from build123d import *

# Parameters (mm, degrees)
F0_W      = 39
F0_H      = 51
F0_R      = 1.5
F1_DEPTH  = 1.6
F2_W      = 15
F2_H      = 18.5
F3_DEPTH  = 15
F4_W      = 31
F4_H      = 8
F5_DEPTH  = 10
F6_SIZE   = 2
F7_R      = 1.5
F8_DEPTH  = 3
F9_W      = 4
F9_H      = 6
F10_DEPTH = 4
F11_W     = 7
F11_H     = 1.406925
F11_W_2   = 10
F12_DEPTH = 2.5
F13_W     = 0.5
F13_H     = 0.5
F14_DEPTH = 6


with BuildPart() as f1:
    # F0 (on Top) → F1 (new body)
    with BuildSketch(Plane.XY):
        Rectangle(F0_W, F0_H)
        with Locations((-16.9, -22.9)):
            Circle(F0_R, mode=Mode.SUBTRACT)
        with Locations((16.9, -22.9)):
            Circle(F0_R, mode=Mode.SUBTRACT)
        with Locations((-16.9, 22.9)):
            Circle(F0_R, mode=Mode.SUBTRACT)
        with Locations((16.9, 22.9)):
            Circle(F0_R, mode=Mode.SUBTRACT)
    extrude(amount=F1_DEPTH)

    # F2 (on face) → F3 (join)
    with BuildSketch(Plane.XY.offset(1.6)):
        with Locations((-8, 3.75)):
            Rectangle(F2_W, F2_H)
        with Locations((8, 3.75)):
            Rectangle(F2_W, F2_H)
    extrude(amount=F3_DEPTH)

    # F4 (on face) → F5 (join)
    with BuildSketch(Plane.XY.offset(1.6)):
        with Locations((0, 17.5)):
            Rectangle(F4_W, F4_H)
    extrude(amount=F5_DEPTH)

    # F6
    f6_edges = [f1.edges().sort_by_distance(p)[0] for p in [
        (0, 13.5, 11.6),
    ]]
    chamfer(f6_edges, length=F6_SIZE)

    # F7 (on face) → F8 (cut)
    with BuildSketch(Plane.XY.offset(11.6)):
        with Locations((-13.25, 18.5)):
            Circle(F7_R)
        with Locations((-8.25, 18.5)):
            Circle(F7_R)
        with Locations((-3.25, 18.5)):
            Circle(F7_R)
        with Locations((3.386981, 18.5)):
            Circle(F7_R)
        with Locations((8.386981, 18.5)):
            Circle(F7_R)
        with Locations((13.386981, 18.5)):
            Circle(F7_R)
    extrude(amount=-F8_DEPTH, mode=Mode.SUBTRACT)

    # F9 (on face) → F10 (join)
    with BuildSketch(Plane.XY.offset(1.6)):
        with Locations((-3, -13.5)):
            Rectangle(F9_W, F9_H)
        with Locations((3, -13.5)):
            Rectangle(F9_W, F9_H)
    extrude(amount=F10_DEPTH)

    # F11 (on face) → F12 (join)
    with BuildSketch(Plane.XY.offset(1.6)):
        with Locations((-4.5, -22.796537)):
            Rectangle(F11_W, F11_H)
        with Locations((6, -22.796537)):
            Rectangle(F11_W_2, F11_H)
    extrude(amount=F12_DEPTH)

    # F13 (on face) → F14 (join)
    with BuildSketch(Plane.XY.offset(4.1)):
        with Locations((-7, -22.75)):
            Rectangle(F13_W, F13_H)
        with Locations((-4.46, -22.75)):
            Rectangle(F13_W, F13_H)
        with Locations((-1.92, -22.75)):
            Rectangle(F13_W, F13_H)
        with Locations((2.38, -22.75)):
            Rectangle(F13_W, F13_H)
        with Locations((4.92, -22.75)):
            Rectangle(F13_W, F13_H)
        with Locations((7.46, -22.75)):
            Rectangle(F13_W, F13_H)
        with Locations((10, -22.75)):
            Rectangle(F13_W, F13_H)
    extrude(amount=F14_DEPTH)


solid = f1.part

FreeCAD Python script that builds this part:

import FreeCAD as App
import Part
import Sketcher


def edges_at(feature, points):
    """Names of the edges that pass closest to the given points."""
    edges = feature.Shape.Edges
    near = lambda p: min(range(len(edges)), key=lambda i: edges[i].distToShape(Part.Vertex(*p))[0])
    return sorted({f"Edge{near(p) + 1}" for p in points})


def add_polygon(sketch, points):
    """Adds a closed chain of lines whose ends are joined by coincident constraints."""
    first, n = sketch.GeometryCount, len(points)
    for a, b in zip(points, points[1:] + points[:1]):
        sketch.addGeometry(Part.LineSegment(App.Vector(*a, 0), App.Vector(*b, 0)), False)
    for i in range(n):
        sketch.addConstraint(Sketcher.Constraint("Coincident", first + i, 2, first + (i + 1) % n, 1))

doc = App.newDocument("Part")
params = doc.addObject("Spreadsheet::Sheet", "Params")
for row, (alias, value) in enumerate([
    ("sketch1_diameter", "3 mm"),
    ("sketch1_width", "39 mm"),
    ("sketch1_height", "51 mm"),
    ("pad1_length", "1.6 mm"),
    ("sketch2_width", "15 mm"),
    ("sketch2_height", "18.5 mm"),
    ("pad2_length", "15 mm"),
    ("sketch3_width", "31 mm"),
    ("sketch3_height", "8 mm"),
    ("pad3_length", "10 mm"),
    ("chamfer_size", "2 mm"),
    ("sketch4_diameter", "3 mm"),
    ("pocket1_length", "3 mm"),
    ("sketch5_width", "4 mm"),
    ("sketch5_height", "6 mm"),
    ("pad4_length", "4 mm"),
    ("sketch6_width", "7 mm"),
    ("sketch6_width2", "10 mm"),
    ("pad5_length", "2.5 mm"),
    ("sketch7_width", "0.5 mm"),
    ("pad6_length", "6 mm"),
], start=1):
    params.set(f"A{row}", alias)
    params.set(f"B{row}", "=" + value)
    params.setAlias(f"B{row}", alias)

body = doc.addObject("PartDesign::Body", "Body")

# Sketch on XY plane
sketch1 = body.newObject("Sketcher::SketchObject", "Sketch")
sketch1.AttachmentSupport = (doc.getObject("XY_Plane"), [""])
sketch1.MapMode = "FlatFace"
add_polygon(sketch1, [(-19.5, 25.5), (-19.5, -25.5), (19.5, -25.5), (19.5, 25.5)])  # lines 0-3
sketch1.addGeometry(Part.Circle(App.Vector(-16.9, -22.9, 0), App.Vector(0, 0, 1), 1.5), False)  # 4
sketch1.addGeometry(Part.Circle(App.Vector(16.9, -22.9, 0), App.Vector(0, 0, 1), 1.5), False)  # 5
sketch1.addGeometry(Part.Circle(App.Vector(-16.9, 22.9, 0), App.Vector(0, 0, 1), 1.5), False)  # 6
sketch1.addGeometry(Part.Circle(App.Vector(16.9, 22.9, 0), App.Vector(0, 0, 1), 1.5), False)  # 7
sketch1.addConstraint([
    Sketcher.Constraint("Vertical", 0),
    Sketcher.Constraint("Horizontal", 1),
    Sketcher.Constraint("Vertical", 2),
    Sketcher.Constraint("Horizontal", 3),
    Sketcher.Constraint("Equal", 4, 5),
    Sketcher.Constraint("Equal", 5, 6),
    Sketcher.Constraint("Equal", 6, 7),
    Sketcher.Constraint("Symmetric", 5, 3, 6, 3, -1, 1),
    Sketcher.Constraint("Symmetric", 4, 3, 7, 3, -1, 1),
    Sketcher.Constraint("Symmetric", 0, 2, 2, 2, -1, 1),
    Sketcher.Constraint("Symmetric", 4, 3, 5, 3, -2),
    Sketcher.Constraint("Diameter", 4, 3.0),
    Sketcher.Constraint("DistanceX", 1, 1, 1, 2, 39.0),
    Sketcher.Constraint("DistanceY", 0, 2, 0, 1, 51.0),
    Sketcher.Constraint("DistanceX", 4, 3, -1, 1, 16.9),
    Sketcher.Constraint("DistanceY", 4, 3, -1, 1, 22.9),
])
sketch1.setExpression("Constraints[15]", "Params.sketch1_diameter")
sketch1.setExpression("Constraints[16]", "Params.sketch1_width")
sketch1.setExpression("Constraints[17]", "Params.sketch1_height")
pad1 = body.newObject("PartDesign::Pad", "Pad")
pad1.Profile = sketch1
pad1.setExpression("Length", "Params.pad1_length")

# Sketch on XY plane
sketch2 = body.newObject("Sketcher::SketchObject", "Sketch001")
sketch2.AttachmentSupport = (doc.getObject("XY_Plane"), [""])
sketch2.MapMode = "FlatFace"
sketch2.AttachmentOffset = App.Placement(App.Vector(0, 0, 1.6), App.Rotation())
add_polygon(sketch2, [(-15.5, 13), (-15.5, -5.5), (-0.5, -5.5), (-0.5, 13)])  # lines 0-3
add_polygon(sketch2, [(0.5, 13), (0.5, -5.5), (15.5, -5.5), (15.5, 13)])  # lines 4-7
sketch2.addConstraint([
    Sketcher.Constraint("Vertical", 0),
    Sketcher.Constraint("Horizontal", 1),
    Sketcher.Constraint("Vertical", 2),
    Sketcher.Constraint("Horizontal", 3),
    Sketcher.Constraint("Vertical", 4),
    Sketcher.Constraint("Horizontal", 5),
    Sketcher.Constraint("Vertical", 6),
    Sketcher.Constraint("Horizontal", 7),
    Sketcher.Constraint("Symmetric", 1, 2, 4, 2, -2),
    Sketcher.Constraint("Symmetric", 3, 2, 6, 2, -2),
    Sketcher.Constraint("DistanceX", 1, 1, 1, 2, 15.0),
    Sketcher.Constraint("DistanceY", 0, 2, 0, 1, 18.5),
    Sketcher.Constraint("DistanceY", -1, 1, 2, 2, 13.0),
    Sketcher.Constraint("DistanceX", 1, 2, 4, 2, 1.0),
])
sketch2.setExpression("Constraints[18]", "Params.sketch2_width")
sketch2.setExpression("Constraints[19]", "Params.sketch2_height")
pad2 = body.newObject("PartDesign::Pad", "Pad001")
pad2.Profile = sketch2
pad2.setExpression("Length", "Params.pad2_length")

# Sketch on XY plane
sketch3 = body.newObject("Sketcher::SketchObject", "Sketch002")
sketch3.AttachmentSupport = (doc.getObject("XY_Plane"), [""])
sketch3.MapMode = "FlatFace"
sketch3.AttachmentOffset = App.Placement(App.Vector(0, 0, 1.6), App.Rotation())
add_polygon(sketch3, [(-15.5, 21.5), (-15.5, 13.5), (15.5, 13.5), (15.5, 21.5)])  # lines 0-3
sketch3.addConstraint([
    Sketcher.Constraint("Vertical", 0),
    Sketcher.Constraint("Horizontal", 1),
    Sketcher.Constraint("Vertical", 2),
    Sketcher.Constraint("Horizontal", 3),
    Sketcher.Constraint("DistanceX", 1, 1, 1, 2, 31.0),
    Sketcher.Constraint("DistanceY", 0, 2, 0, 1, 8.0),
    Sketcher.Constraint("DistanceX", 0, 2, -1, 1, 15.5),
    Sketcher.Constraint("DistanceY", -1, 1, 0, 2, 13.5),
])
sketch3.setExpression("Constraints[8]", "Params.sketch3_width")
sketch3.setExpression("Constraints[9]", "Params.sketch3_height")
pad3 = body.newObject("PartDesign::Pad", "Pad002")
pad3.Profile = sketch3
pad3.setExpression("Length", "Params.pad3_length")
doc.recompute()

chamfer = body.newObject("PartDesign::Chamfer", "Chamfer")
chamfer.Base = (pad3, edges_at(pad3, [(0, 13.5, 11.6)]))
chamfer.setExpression("Size", "Params.chamfer_size")

# Sketch on XY plane
sketch4 = body.newObject("Sketcher::SketchObject", "Sketch003")
sketch4.AttachmentSupport = (doc.getObject("XY_Plane"), [""])
sketch4.MapMode = "FlatFace"
sketch4.AttachmentOffset = App.Placement(App.Vector(0, 0, 11.6), App.Rotation())
sketch4.addGeometry([
    Part.Circle(App.Vector(-13.25, 18.5, 0), App.Vector(0, 0, 1), 1.5),  # 0
    Part.Circle(App.Vector(-8.25, 18.5, 0), App.Vector(0, 0, 1), 1.5),  # 1
    Part.Circle(App.Vector(-3.25, 18.5, 0), App.Vector(0, 0, 1), 1.5),  # 2
    Part.Circle(App.Vector(3.386981, 18.5, 0), App.Vector(0, 0, 1), 1.5),  # 3
    Part.Circle(App.Vector(8.386981, 18.5, 0), App.Vector(0, 0, 1), 1.5),  # 4
    Part.Circle(App.Vector(13.386981, 18.5, 0), App.Vector(0, 0, 1), 1.5),  # 5
], False)
sketch4.addConstraint([
    Sketcher.Constraint("Equal", 0, 1),
    Sketcher.Constraint("Equal", 1, 2),
    Sketcher.Constraint("Equal", 2, 3),
    Sketcher.Constraint("Equal", 3, 4),
    Sketcher.Constraint("Equal", 4, 5),
    Sketcher.Constraint("Horizontal", 0, 3, 1, 3),
    Sketcher.Constraint("Horizontal", 1, 3, 2, 3),
    Sketcher.Constraint("Horizontal", 2, 3, 3, 3),
    Sketcher.Constraint("Horizontal", 3, 3, 4, 3),
    Sketcher.Constraint("Horizontal", 4, 3, 5, 3),
    Sketcher.Constraint("Diameter", 0, 3.0),
    Sketcher.Constraint("DistanceX", 0, 3, 1, 3, 5.0),
    Sketcher.Constraint("DistanceX", 1, 3, 2, 3, 5.0),
    Sketcher.Constraint("DistanceX", 3, 3, 4, 3, 5.0),
    Sketcher.Constraint("DistanceX", 4, 3, 5, 3, 5.0),
    Sketcher.Constraint("DistanceY", -1, 1, 0, 3, 18.5),
    Sketcher.Constraint("DistanceX", 0, 3, -1, 1, 13.25),
    Sketcher.Constraint("DistanceX", -1, 1, 3, 3, 3.386981),
])
sketch4.setExpression("Constraints[10]", "Params.sketch4_diameter")
pocket1 = body.newObject("PartDesign::Pocket", "Pocket")
pocket1.Profile = sketch4
pocket1.setExpression("Length", "Params.pocket1_length")

# Sketch on XY plane
sketch5 = body.newObject("Sketcher::SketchObject", "Sketch004")
sketch5.AttachmentSupport = (doc.getObject("XY_Plane"), [""])
sketch5.MapMode = "FlatFace"
sketch5.AttachmentOffset = App.Placement(App.Vector(0, 0, 1.6), App.Rotation())
add_polygon(sketch5, [(-5, -10.5), (-5, -16.5), (-1, -16.5), (-1, -10.5)])  # lines 0-3
add_polygon(sketch5, [(1, -10.5), (1, -16.5), (5, -16.5), (5, -10.5)])  # lines 4-7
sketch5.addConstraint([
    Sketcher.Constraint("Vertical", 0),
    Sketcher.Constraint("Horizontal", 1),
    Sketcher.Constraint("Vertical", 2),
    Sketcher.Constraint("Horizontal", 3),
    Sketcher.Constraint("Vertical", 4),
    Sketcher.Constraint("Horizontal", 5),
    Sketcher.Constraint("Vertical", 6),
    Sketcher.Constraint("Horizontal", 7),
    Sketcher.Constraint("Symmetric", 1, 2, 4, 2, -2),
    Sketcher.Constraint("Symmetric", 3, 2, 6, 2, -2),
    Sketcher.Constraint("DistanceX", 1, 1, 1, 2, 4.0),
    Sketcher.Constraint("DistanceY", 0, 2, 0, 1, 6.0),
    Sketcher.Constraint("DistanceX", 0, 2, -1, 1, 5.0),
    Sketcher.Constraint("DistanceY", 0, 2, -1, 1, 16.5),
])
sketch5.setExpression("Constraints[18]", "Params.sketch5_width")
sketch5.setExpression("Constraints[19]", "Params.sketch5_height")
pad4 = body.newObject("PartDesign::Pad", "Pad003")
pad4.Profile = sketch5
pad4.setExpression("Length", "Params.pad4_length")

# Sketch on XY plane
sketch6 = body.newObject("Sketcher::SketchObject", "Sketch005")
sketch6.AttachmentSupport = (doc.getObject("XY_Plane"), [""])
sketch6.MapMode = "FlatFace"
sketch6.AttachmentOffset = App.Placement(App.Vector(0, 0, 1.6), App.Rotation())
add_polygon(sketch6, [(-8, -22.093075), (-8, -23.5), (-1, -23.5), (-1, -22.093075)])  # lines 0-3
add_polygon(sketch6, [(1, -22.093075), (1, -23.5), (11, -23.5), (11, -22.093075)])  # lines 4-7
sketch6.addConstraint([
    Sketcher.Constraint("Vertical", 0),
    Sketcher.Constraint("Horizontal", 1),
    Sketcher.Constraint("Vertical", 2),
    Sketcher.Constraint("Horizontal", 3),
    Sketcher.Constraint("Vertical", 4),
    Sketcher.Constraint("Horizontal", 5),
    Sketcher.Constraint("Vertical", 6),
    Sketcher.Constraint("Horizontal", 7),
    Sketcher.Constraint("Symmetric", 1, 2, 4, 2, -2),
    Sketcher.Constraint("Horizontal", 3, 2, 6, 2),
    Sketcher.Constraint("DistanceX", 1, 1, 1, 2, 7.0),
    Sketcher.Constraint("DistanceX", 5, 1, 5, 2, 10.0),
    Sketcher.Constraint("DistanceX", 0, 2, -1, 1, 8.0),
    Sketcher.Constraint("DistanceY", 0, 2, -1, 1, 23.5),
    Sketcher.Constraint("DistanceY", 0, 2, 0, 1, 1.406925),
])
sketch6.setExpression("Constraints[18]", "Params.sketch6_width")
sketch6.setExpression("Constraints[19]", "Params.sketch6_width2")
pad5 = body.newObject("PartDesign::Pad", "Pad004")
pad5.Profile = sketch6
pad5.setExpression("Length", "Params.pad5_length")

# Sketch on XY plane
sketch7 = body.newObject("Sketcher::SketchObject", "Sketch006")
sketch7.AttachmentSupport = (doc.getObject("XY_Plane"), [""])
sketch7.MapMode = "FlatFace"
sketch7.AttachmentOffset = App.Placement(App.Vector(0, 0, 4.1), App.Rotation())
add_polygon(sketch7, [(-7.25, -22.5), (-7.25, -23), (-6.75, -23), (-6.75, -22.5)])  # lines 0-3
add_polygon(sketch7, [(-4.71, -22.5), (-4.71, -23), (-4.21, -23), (-4.21, -22.5)])  # lines 4-7
add_polygon(sketch7, [(-2.17, -22.5), (-2.17, -23), (-1.67, -23), (-1.67, -22.5)])  # lines 8-11
add_polygon(sketch7, [(2.13, -22.5), (2.13, -23), (2.63, -23), (2.63, -22.5)])  # lines 12-15
add_polygon(sketch7, [(4.67, -22.5), (4.67, -23), (5.17, -23), (5.17, -22.5)])  # lines 16-19
add_polygon(sketch7, [(7.21, -22.5), (7.21, -23), (7.71, -23), (7.71, -22.5)])  # lines 20-23
add_polygon(sketch7, [(9.75, -22.5), (9.75, -23), (10.25, -23), (10.25, -22.5)])  # lines 24-27
sketch7.addConstraint([
    Sketcher.Constraint("Vertical", 0),
    Sketcher.Constraint("Horizontal", 1),
    Sketcher.Constraint("Vertical", 2),
    Sketcher.Constraint("Horizontal", 3),
    Sketcher.Constraint("Vertical", 4),
    Sketcher.Constraint("Horizontal", 5),
    Sketcher.Constraint("Vertical", 6),
    Sketcher.Constraint("Horizontal", 7),
    Sketcher.Constraint("Vertical", 8),
    Sketcher.Constraint("Horizontal", 9),
    Sketcher.Constraint("Vertical", 10),
    Sketcher.Constraint("Horizontal", 11),
    Sketcher.Constraint("Vertical", 12),
    Sketcher.Constraint("Horizontal", 13),
    Sketcher.Constraint("Vertical", 14),
    Sketcher.Constraint("Horizontal", 15),
    Sketcher.Constraint("Vertical", 16),
    Sketcher.Constraint("Horizontal", 17),
    Sketcher.Constraint("Vertical", 18),
    Sketcher.Constraint("Horizontal", 19),
    Sketcher.Constraint("Vertical", 20),
    Sketcher.Constraint("Horizontal", 21),
    Sketcher.Constraint("Vertical", 22),
    Sketcher.Constraint("Horizontal", 23),
    Sketcher.Constraint("Vertical", 24),
    Sketcher.Constraint("Horizontal", 25),
    Sketcher.Constraint("Vertical", 26),
    Sketcher.Constraint("Horizontal", 27),
    Sketcher.Constraint("Horizontal", 1, 2, 4, 2),
    Sketcher.Constraint("Horizontal", 3, 2, 6, 2),
    Sketcher.Constraint("Horizontal", 5, 2, 8, 2),
    Sketcher.Constraint("Horizontal", 7, 2, 10, 2),
    Sketcher.Constraint("Horizontal", 9, 2, 12, 2),
    Sketcher.Constraint("Horizontal", 11, 2, 14, 2),
    Sketcher.Constraint("Horizontal", 13, 2, 16, 2),
    Sketcher.Constraint("Horizontal", 15, 2, 18, 2),
    Sketcher.Constraint("Horizontal", 17, 2, 20, 2),
    Sketcher.Constraint("Horizontal", 19, 2, 22, 2),
    Sketcher.Constraint("Horizontal", 21, 2, 24, 2),
    Sketcher.Constraint("Horizontal", 23, 2, 26, 2),
    Sketcher.Constraint("Equal", 3, 5),
    Sketcher.Constraint("Equal", 7, 9),
    Sketcher.Constraint("Equal", 11, 13),
    Sketcher.Constraint("Equal", 15, 17),
    Sketcher.Constraint("Equal", 19, 21),
    Sketcher.Constraint("Equal", 23, 25),
    Sketcher.Constraint("Equal", 27, 0),
    Sketcher.Constraint("DistanceX", 1, 1, 1, 2, 0.5),
    Sketcher.Constraint("DistanceY", 0, 2, -1, 1, 23.0),
    Sketcher.Constraint("DistanceX", 9, 2, 12, 2, 3.8),
    Sketcher.Constraint("DistanceX", 0, 2, -1, 1, 7.25),
    Sketcher.Constraint("DistanceX", 4, 2, -1, 1, 4.71),
    Sketcher.Constraint("DistanceX", 8, 2, -1, 1, 2.17),
    Sketcher.Constraint("DistanceX", -1, 1, 16, 2, 4.67),
    Sketcher.Constraint("DistanceX", -1, 1, 20, 2, 7.21),
    Sketcher.Constraint("DistanceX", -1, 1, 24, 2, 9.75),
])
sketch7.setExpression("Constraints[75]", "Params.sketch7_width")
pad6 = body.newObject("PartDesign::Pad", "Pad005")
pad6.Profile = sketch7
pad6.setExpression("Length", "Params.pad6_length")

doc.recompute()
